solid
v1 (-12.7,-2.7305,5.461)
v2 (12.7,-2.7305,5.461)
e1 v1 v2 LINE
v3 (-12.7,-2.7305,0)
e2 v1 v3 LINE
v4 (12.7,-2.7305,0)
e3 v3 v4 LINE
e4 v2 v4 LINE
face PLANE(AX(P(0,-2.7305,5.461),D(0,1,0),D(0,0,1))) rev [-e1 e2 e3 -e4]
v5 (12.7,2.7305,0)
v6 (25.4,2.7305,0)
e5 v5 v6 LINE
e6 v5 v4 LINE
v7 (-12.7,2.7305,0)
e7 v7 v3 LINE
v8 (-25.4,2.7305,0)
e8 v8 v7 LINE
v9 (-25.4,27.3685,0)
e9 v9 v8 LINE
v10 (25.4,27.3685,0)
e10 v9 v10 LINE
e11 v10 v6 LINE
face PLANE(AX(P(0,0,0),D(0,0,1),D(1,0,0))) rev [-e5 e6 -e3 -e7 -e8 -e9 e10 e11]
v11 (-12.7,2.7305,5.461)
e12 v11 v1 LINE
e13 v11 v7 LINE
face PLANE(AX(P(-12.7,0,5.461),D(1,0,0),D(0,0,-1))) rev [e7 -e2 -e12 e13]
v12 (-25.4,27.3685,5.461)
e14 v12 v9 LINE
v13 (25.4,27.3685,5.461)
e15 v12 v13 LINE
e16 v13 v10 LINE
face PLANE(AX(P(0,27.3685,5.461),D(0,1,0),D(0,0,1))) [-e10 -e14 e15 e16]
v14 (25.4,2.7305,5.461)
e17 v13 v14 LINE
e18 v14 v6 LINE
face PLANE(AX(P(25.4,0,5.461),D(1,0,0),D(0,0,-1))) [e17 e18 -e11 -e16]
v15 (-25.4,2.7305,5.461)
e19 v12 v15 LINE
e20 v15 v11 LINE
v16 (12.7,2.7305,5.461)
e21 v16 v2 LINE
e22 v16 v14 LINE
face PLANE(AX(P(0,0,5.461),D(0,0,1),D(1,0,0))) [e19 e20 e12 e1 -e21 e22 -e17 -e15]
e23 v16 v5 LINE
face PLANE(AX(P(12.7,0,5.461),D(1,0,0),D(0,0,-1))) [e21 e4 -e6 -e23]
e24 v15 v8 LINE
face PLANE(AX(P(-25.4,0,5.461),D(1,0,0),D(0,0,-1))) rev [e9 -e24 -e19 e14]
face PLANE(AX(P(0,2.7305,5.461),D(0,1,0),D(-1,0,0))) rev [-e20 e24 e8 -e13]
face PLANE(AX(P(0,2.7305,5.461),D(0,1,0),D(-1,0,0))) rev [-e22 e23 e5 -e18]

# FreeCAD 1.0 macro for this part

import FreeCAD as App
import Part
import Sketcher
Q = App.Units.Quantity


def add_polygon(sketch, points):
    """Adds a closed chain of lines whose ends are joined by coincident constraints."""
    first, n = sketch.GeometryCount, len(points)
    for a, b in zip(points, points[1:] + points[:1]):
        sketch.addGeometry(Part.LineSegment(App.Vector(*a, 0), App.Vector(*b, 0)), False)
    for i in range(n):
        sketch.addConstraint(Sketcher.Constraint("Coincident", first + i, 2, first + (i + 1) % n, 1))

doc = App.newDocument("Part")
body = doc.addObject("PartDesign::Body", "Body")

# Sketch on XY plane
sketch1 = body.newObject("Sketcher::SketchObject", "Sketch")
sketch1.AttachmentSupport = (doc.getObject("XY_Plane"), [""])
sketch1.MapMode = "FlatFace"
add_polygon(sketch1, [(-25, 3), (-13, 3), (-13, -3), (13, -3), (13, 3), (25, 3), (25, 27), (-25, 27)])  # lines 0-7
sketch1.addConstraint(Sketcher.Constraint("Horizontal", 0))
sketch1.addConstraint(Sketcher.Constraint("Vertical", 1))
sketch1.addConstraint(Sketcher.Constraint("Horizontal", 2))
sketch1.addConstraint(Sketcher.Constraint("Vertical", 3))
sketch1.addConstraint(Sketcher.Constraint("Horizontal", 4))
sketch1.addConstraint(Sketcher.Constraint("Vertical", 5))
sketch1.addConstraint(Sketcher.Constraint("Horizontal", 6))
sketch1.addConstraint(Sketcher.Constraint("Vertical", 7))
sketch1.addConstraint(Sketcher.Constraint("Symmetric", 0, 2, 2, 2, -1, 1))
sketch1.addConstraint(Sketcher.Constraint("Symmetric", 4, 2, 7, 2, -2))
sketch1.addConstraint(Sketcher.Constraint("DistanceX", 2, 1, 2, 2, Q("1 in")))
sketch1.addConstraint(Sketcher.Constraint("DistanceX", 6, 2, 6, 1, Q("2 in")))
sketch1.addConstraint(Sketcher.Constraint("DistanceY", 5, 1, 5, 2, Q("0.97 in")))
sketch1.addConstraint(Sketcher.Constraint("DistanceY", 1, 2, 1, 1, Q("0.215 in")))
pad1 = body.newObject("PartDesign::Pad", "Pad")
pad1.Profile = sketch1
pad1.Length = Q("0.215 in")

doc.recompute()
